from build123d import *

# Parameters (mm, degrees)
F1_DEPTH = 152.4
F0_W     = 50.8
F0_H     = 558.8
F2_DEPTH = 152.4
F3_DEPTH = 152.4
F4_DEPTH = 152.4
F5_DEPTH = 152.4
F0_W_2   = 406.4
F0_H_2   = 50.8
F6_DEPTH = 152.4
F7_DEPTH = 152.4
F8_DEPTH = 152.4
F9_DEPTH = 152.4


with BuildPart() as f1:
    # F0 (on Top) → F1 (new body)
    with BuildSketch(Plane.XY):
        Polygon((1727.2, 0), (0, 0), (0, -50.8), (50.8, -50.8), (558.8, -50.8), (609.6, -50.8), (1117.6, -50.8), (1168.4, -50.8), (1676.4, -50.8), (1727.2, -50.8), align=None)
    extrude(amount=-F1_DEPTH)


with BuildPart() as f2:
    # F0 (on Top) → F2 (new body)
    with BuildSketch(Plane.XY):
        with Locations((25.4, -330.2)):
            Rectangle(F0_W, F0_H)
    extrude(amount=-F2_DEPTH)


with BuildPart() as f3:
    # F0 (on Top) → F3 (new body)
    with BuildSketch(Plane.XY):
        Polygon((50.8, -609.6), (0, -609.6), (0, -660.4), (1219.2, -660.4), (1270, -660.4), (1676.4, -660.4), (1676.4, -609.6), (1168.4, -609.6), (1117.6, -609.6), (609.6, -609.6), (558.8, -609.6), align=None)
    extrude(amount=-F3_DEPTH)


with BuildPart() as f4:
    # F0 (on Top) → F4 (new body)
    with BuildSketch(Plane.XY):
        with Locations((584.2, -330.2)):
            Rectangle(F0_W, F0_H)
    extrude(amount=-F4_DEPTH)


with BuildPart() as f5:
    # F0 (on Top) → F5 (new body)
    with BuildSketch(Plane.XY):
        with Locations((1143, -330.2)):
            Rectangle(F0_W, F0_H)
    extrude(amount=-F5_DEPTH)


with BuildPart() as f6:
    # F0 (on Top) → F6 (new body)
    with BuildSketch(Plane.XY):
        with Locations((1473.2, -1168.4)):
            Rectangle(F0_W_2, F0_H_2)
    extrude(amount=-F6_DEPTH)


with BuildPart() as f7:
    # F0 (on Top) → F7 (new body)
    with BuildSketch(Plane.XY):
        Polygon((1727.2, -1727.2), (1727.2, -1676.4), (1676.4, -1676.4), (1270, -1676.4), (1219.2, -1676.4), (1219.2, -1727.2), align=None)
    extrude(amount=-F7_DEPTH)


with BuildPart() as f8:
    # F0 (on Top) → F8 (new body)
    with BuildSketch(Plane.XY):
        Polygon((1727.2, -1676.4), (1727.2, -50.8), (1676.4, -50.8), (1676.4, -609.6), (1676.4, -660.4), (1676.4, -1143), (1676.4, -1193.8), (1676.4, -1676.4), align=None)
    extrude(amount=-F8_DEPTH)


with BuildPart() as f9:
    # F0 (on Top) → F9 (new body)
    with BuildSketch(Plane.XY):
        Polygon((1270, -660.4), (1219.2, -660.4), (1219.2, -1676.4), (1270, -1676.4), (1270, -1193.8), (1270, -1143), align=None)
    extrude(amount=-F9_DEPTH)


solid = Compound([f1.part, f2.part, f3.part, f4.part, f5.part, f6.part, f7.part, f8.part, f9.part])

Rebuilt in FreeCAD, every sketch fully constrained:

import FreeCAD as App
import Part
import Sketcher
Q = App.Units.Quantity

doc = App.newDocument("Part")
body = doc.addObject("PartDesign::Body", "Body")

sketch1 = body.newObject("Sketcher::SketchObject", "Sketch")
sketch1.AttachmentSupport = (doc.getObject("XY_Plane"), [""])
sketch1.MapMode = "FlatFace"
sketch1.addGeometry([
    Part.LineSegment(App.Vector(1727, 0, 0), App.Vector(0, 0, 0)),
    Part.LineSegment(App.Vector(0, 0, 0), App.Vector(0, -51, 0)),
    Part.LineSegment(App.Vector(0, -51, 0), App.Vector(1727, -51, 0)),
    Part.LineSegment(App.Vector(1727, -51, 0), App.Vector(1727, 0, 0)),
], False)
sketch1.addConstraint([
    Sketcher.Constraint("Coincident", 0, 2, 1, 1),
    Sketcher.Constraint("Coincident", 1, 2, 2, 1),
    Sketcher.Constraint("Coincident", 2, 2, 3, 1),
    Sketcher.Constraint("Coincident", 3, 2, 0, 1),
    Sketcher.Constraint("Horizontal", 0),
    Sketcher.Constraint("Vertical", 1),
    Sketcher.Constraint("Horizontal", 2),
    Sketcher.Constraint("Vertical", 3),
    Sketcher.Constraint("Coincident", 0, 2, -1, 1),
    Sketcher.Constraint("DistanceX", 0, 2, 0, 1, Q("68 in")),
    Sketcher.Constraint("DistanceY", 1, 2, 1, 1, Q("2 in")),
])
pad1 = body.newObject("PartDesign::Pad", "Pad")
pad1.Profile = sketch1
pad1.Length = Q("6 in")
pad1.Reversed = True
body2 = doc.addObject("PartDesign::Body", "Body001")

sketch2 = body2.newObject("Sketcher::SketchObject", "Sketch001")
sketch2.AttachmentSupport = (doc.getObject("XY_Plane001"), [""])
sketch2.MapMode = "FlatFace"
sketch2.addGeometry([
    Part.LineSegment(App.Vector(0, -51, 0), App.Vector(0, -610, 0)),
    Part.LineSegment(App.Vector(0, -610, 0), App.Vector(51, -610, 0)),
    Part.LineSegment(App.Vector(51, -610, 0), App.Vector(51, -51, 0)),
    Part.LineSegment(App.Vector(51, -51, 0), App.Vector(0, -51, 0)),
], False)
sketch2.addConstraint([
    Sketcher.Constraint("Coincident", 0, 2, 1, 1),
    Sketcher.Constraint("Coincident", 1, 2, 2, 1),
    Sketcher.Constraint("Coincident", 2, 2, 3, 1),
    Sketcher.Constraint("Coincident", 3, 2, 0, 1),
    Sketcher.Constraint("Vertical", 0),
    Sketcher.Constraint("Horizontal", 1),
    Sketcher.Constraint("Vertical", 2),
    Sketcher.Constraint("Horizontal", 3),
    Sketcher.Constraint("PointOnObject", 0, 2, -2),
    Sketcher.Constraint("DistanceX", 1, 1, 1, 2, Q("2 in")),
    Sketcher.Constraint("DistanceY", 0, 2, 0, 1, Q("22 in")),
    Sketcher.Constraint("DistanceY", 0, 2, -1, 1, Q("24 in")),
])
pad2 = body2.newObject("PartDesign::Pad", "Pad001")
pad2.Profile = sketch2
pad2.Length = Q("6 in")
pad2.Reversed = True
body3 = doc.addObject("PartDesign::Body", "Body002")

sketch3 = body3.newObject("Sketcher::SketchObject", "Sketch002")
sketch3.AttachmentSupport = (doc.getObject("XY_Plane002"), [""])
sketch3.MapMode = "FlatFace"
sketch3.addGeometry([
    Part.LineSegment(App.Vector(0, -610, 0), App.Vector(0, -660, 0)),
    Part.LineSegment(App.Vector(0, -660, 0), App.Vector(1676, -660, 0)),
    Part.LineSegment(App.Vector(1676, -660, 0), App.Vector(1676, -610, 0)),
    Part.LineSegment(App.Vector(1676, -610, 0), App.Vector(0, -610, 0)),
], False)
sketch3.addConstraint([
    Sketcher.Constraint("Coincident", 0, 2, 1, 1),
    Sketcher.Constraint("Coincident", 1, 2, 2, 1),
    Sketcher.Constraint("Coincident", 2, 2, 3, 1),
    Sketcher.Constraint("Coincident", 3, 2, 0, 1),
    Sketcher.Constraint("Vertical", 0),
    Sketcher.Constraint("Horizontal", 1),
    Sketcher.Constraint("Vertical", 2),
    Sketcher.Constraint("Horizontal", 3),
    Sketcher.Constraint("PointOnObject", 0, 2, -2),
    Sketcher.Constraint("DistanceX", 1, 1, 1, 2, Q("66 in")),
    Sketcher.Constraint("DistanceY", 0, 2, 0, 1, Q("2 in")),
    Sketcher.Constraint("DistanceY", 0, 2, -1, 1, Q("26 in")),
])
pad3 = body3.newObject("PartDesign::Pad", "Pad002")
pad3.Profile = sketch3
pad3.Length = Q("6 in")
pad3.Reversed = True
body4 = doc.addObject("PartDesign::Body", "Body003")

sketch4 = body4.newObject("Sketcher::SketchObject", "Sketch003")
sketch4.AttachmentSupport = (doc.getObject("XY_Plane003"), [""])
sketch4.MapMode = "FlatFace"
sketch4.addGeometry([
    Part.LineSegment(App.Vector(559, -51, 0), App.Vector(559, -610, 0)),
    Part.LineSegment(App.Vector(559, -610, 0), App.Vector(610, -610, 0)),
    Part.LineSegment(App.Vector(610, -610, 0), App.Vector(610, -51, 0)),
    Part.LineSegment(App.Vector(610, -51, 0), App.Vector(559, -51, 0)),
], False)
sketch4.addConstraint([
    Sketcher.Constraint("Coincident", 0, 2, 1, 1),
    Sketcher.Constraint("Coincident", 1, 2, 2, 1),
    Sketcher.Constraint("Coincident", 2, 2, 3, 1),
    Sketcher.Constraint("Coincident", 3, 2, 0, 1),
    Sketcher.Constraint("Vertical", 0),
    Sketcher.Constraint("Horizontal", 1),
    Sketcher.Constraint("Vertical", 2),
    Sketcher.Constraint("Horizontal", 3),
    Sketcher.Constraint("DistanceX", 1, 1, 1, 2, Q("2 in")),
    Sketcher.Constraint("DistanceY", 0, 2, 0, 1, Q("22 in")),
    Sketcher.Constraint("DistanceX", -1, 1, 0, 2, Q("22 in")),
    Sketcher.Constraint("DistanceY", 0, 2, -1, 1, Q("24 in")),
])
pad4 = body4.newObject("PartDesign::Pad", "Pad003")
pad4.Profile = sketch4
pad4.Length = Q("6 in")
pad4.Reversed = True
body5 = doc.addObject("PartDesign::Body", "Body004")

sketch5 = body5.newObject("Sketcher::SketchObject", "Sketch004")
sketch5.AttachmentSupport = (doc.getObject("XY_Plane004"), [""])
sketch5.MapMode = "FlatFace"
sketch5.addGeometry([
    Part.LineSegment(App.Vector(1118, -51, 0), App.Vector(1118, -610, 0)),
    Part.LineSegment(App.Vector(1118, -610, 0), App.Vector(1168, -610, 0)),
    Part.LineSegment(App.Vector(1168, -610, 0), App.Vector(1168, -51, 0)),
    Part.LineSegment(App.Vector(1168, -51, 0), App.Vector(1118, -51, 0)),
], False)
sketch5.addConstraint([
    Sketcher.Constraint("Coincident", 0, 2, 1, 1),
    Sketcher.Constraint("Coincident", 1, 2, 2, 1),
    Sketcher.Constraint("Coincident", 2, 2, 3, 1),
    Sketcher.Constraint("Coincident", 3, 2, 0, 1),
    Sketcher.Constraint("Vertical", 0),
    Sketcher.Constraint("Horizontal", 1),
    Sketcher.Constraint("Vertical", 2),
    Sketcher.Constraint("Horizontal", 3),
    Sketcher.Constraint("DistanceX", 1, 1, 1, 2, Q("2 in")),
    Sketcher.Constraint("DistanceY", 0, 2, 0, 1, Q("22 in")),
    Sketcher.Constraint("DistanceX", -1, 1, 0, 2, Q("44 in")),
    Sketcher.Constraint("DistanceY", 0, 2, -1, 1, Q("24 in")),
])
pad5 = body5.newObject("PartDesign::Pad", "Pad004")
pad5.Profile = sketch5
pad5.Length = Q("6 in")
pad5.Reversed = True
body6 = doc.addObject("PartDesign::Body", "Body005")

sketch6 = body6.newObject("Sketcher::SketchObject", "Sketch005")
sketch6.AttachmentSupport = (doc.getObject("XY_Plane005"), [""])
sketch6.MapMode = "FlatFace"
sketch6.addGeometry([
    Part.LineSegment(App.Vector(1270, -1143, 0), App.Vector(1270, -1194, 0)),
    Part.LineSegment(App.Vector(1270, -1194, 0), App.Vector(1676, -1194, 0)),
    Part.LineSegment(App.Vector(1676, -1194, 0), App.Vector(1676, -1143, 0)),
    Part.LineSegment(App.Vector(1676, -1143, 0), App.Vector(1270, -1143, 0)),
], False)
sketch6.addConstraint([
    Sketcher.Constraint("Coincident", 0, 2, 1, 1),
    Sketcher.Constraint("Coincident", 1, 2, 2, 1),
    Sketcher.Constraint("Coincident", 2, 2, 3, 1),
    Sketcher.Constraint("Coincident", 3, 2, 0, 1),
    Sketcher.Constraint("Vertical", 0),
    Sketcher.Constraint("Horizontal", 1),
    Sketcher.Constraint("Vertical", 2),
    Sketcher.Constraint("Horizontal", 3),
    Sketcher.Constraint("DistanceX", 1, 1, 1, 2, Q("16 in")),
    Sketcher.Constraint("DistanceY", 0, 2, 0, 1, Q("2 in")),
    Sketcher.Constraint("DistanceX", -1, 1, 0, 2, Q("50 in")),
    Sketcher.Constraint("DistanceY", 0, 2, -1, 1, Q("47 in")),
])
pad6 = body6.newObject("PartDesign::Pad", "Pad005")
pad6.Profile = sketch6
pad6.Length = Q("6 in")
pad6.Reversed = True
body7 = doc.addObject("PartDesign::Body", "Body006")

sketch7 = body7.newObject("Sketcher::SketchObject", "Sketch006")
sketch7.AttachmentSupport = (doc.getObject("XY_Plane006"), [""])
sketch7.MapMode = "FlatFace"
sketch7.addGeometry([
    Part.LineSegment(App.Vector(1727, -1727, 0), App.Vector(1727, -1676, 0)),
    Part.LineSegment(App.Vector(1727, -1676, 0), App.Vector(1219, -1676, 0)),
    Part.LineSegment(App.Vector(1219, -1676, 0), App.Vector(1219, -1727, 0)),
    Part.LineSegment(App.Vector(1219, -1727, 0), App.Vector(1727, -1727, 0)),
], False)
sketch7.addConstraint([
    Sketcher.Constraint("Coincident", 0, 2, 1, 1),
    Sketcher.Constraint("Coincident", 1, 2, 2, 1),
    Sketcher.Constraint("Coincident", 2, 2, 3, 1),
    Sketcher.Constraint("Coincident", 3, 2, 0, 1),
    Sketcher.Constraint("Vertical", 0),
    Sketcher.Constraint("Horizontal", 1),
    Sketcher.Constraint("Vertical", 2),
    Sketcher.Constraint("Horizontal", 3),
    Sketcher.Constraint("DistanceX", 1, 2, 1, 1, Q("20 in")),
    Sketcher.Constraint("DistanceY", 0, 1, 0, 2, Q("2 in")),
    Sketcher.Constraint("DistanceX", -1, 1, 0, 2, Q("68 in")),
    Sketcher.Constraint("DistanceY", 0, 2, -1, 1, Q("66 in")),
])
pad7 = body7.newObject("PartDesign::Pad", "Pad006")
pad7.Profile = sketch7
pad7.Length = Q("6 in")
pad7.Reversed = True
body8 = doc.addObject("PartDesign::Body", "Body007")

sketch8 = body8.newObject("Sketcher::SketchObject", "Sketch007")
sketch8.AttachmentSupport = (doc.getObject("XY_Plane007"), [""])
sketch8.MapMode = "FlatFace"
sketch8.addGeometry([
    Part.LineSegment(App.Vector(1727, -1676, 0), App.Vector(1727, -51, 0)),
    Part.LineSegment(App.Vector(1727, -51, 0), App.Vector(1676, -51, 0)),
    Part.LineSegment(App.Vector(1676, -51, 0), App.Vector(1676, -1676, 0)),
    Part.LineSegment(App.Vector(1676, -1676, 0), App.Vector(1727, -1676, 0)),
], False)
sketch8.addConstraint([
    Sketcher.Constraint("Coincident", 0, 2, 1, 1),
    Sketcher.Constraint("Coincident", 1, 2, 2, 1),
    Sketcher.Constraint("Coincident", 2, 2, 3, 1),
    Sketcher.Constraint("Coincident", 3, 2, 0, 1),
    Sketcher.Constraint("Vertical", 0),
    Sketcher.Constraint("Horizontal", 1),
    Sketcher.Constraint("Vertical", 2),
    Sketcher.Constraint("Horizontal", 3),
    Sketcher.Constraint("DistanceX", 1, 2, 1, 1, Q("2 in")),
    Sketcher.Constraint("DistanceY", 0, 1, 0, 2, Q("64 in")),
    Sketcher.Constraint("DistanceX", -1, 1, 0, 2, Q("68 in")),
    Sketcher.Constraint("DistanceY", 0, 2, -1, 1, Q("2 in")),
])
pad8 = body8.newObject("PartDesign::Pad", "Pad007")
pad8.Profile = sketch8
pad8.Length = Q("6 in")
pad8.Reversed = True
body9 = doc.addObject("PartDesign::Body", "Body008")

sketch9 = body9.newObject("Sketcher::SketchObject", "Sketch008")
sketch9.AttachmentSupport = (doc.getObject("XY_Plane008"), [""])
sketch9.MapMode = "FlatFace"
sketch9.addGeometry([
    Part.LineSegment(App.Vector(1270, -660, 0), App.Vector(1219, -660, 0)),
    Part.LineSegment(App.Vector(1219, -660, 0), App.Vector(1219, -1676, 0)),
    Part.LineSegment(App.Vector(1219, -1676, 0), App.Vector(1270, -1676, 0)),
    Part.LineSegment(App.Vector(1270, -1676, 0), App.Vector(1270, -660, 0)),
], False)
sketch9.addConstraint([
    Sketcher.Constraint("Coincident", 0, 2, 1, 1),
    Sketcher.Constraint("Coincident", 1, 2, 2, 1),
    Sketcher.Constraint("Coincident", 2, 2, 3, 1),
    Sketcher.Constraint("Coincident", 3, 2, 0, 1),
    Sketcher.Constraint("Horizontal", 0),
    Sketcher.Constraint("Vertical", 1),
    Sketcher.Constraint("Horizontal", 2),
    Sketcher.Constraint("Vertical", 3),
    Sketcher.Constraint("DistanceX", 0, 2, 0, 1, Q("2 in")),
    Sketcher.Constraint("DistanceY", 1, 2, 1, 1, Q("40 in")),
    Sketcher.Constraint("DistanceX", -1, 1, 0, 2, Q("48 in")),
    Sketcher.Constraint("DistanceY", 0, 2, -1, 1, Q("26 in")),
])
pad9 = body9.newObject("PartDesign::Pad", "Pad008")
pad9.Profile = sketch9
pad9.Length = Q("6 in")
pad9.Reversed = True

doc.recompute()
